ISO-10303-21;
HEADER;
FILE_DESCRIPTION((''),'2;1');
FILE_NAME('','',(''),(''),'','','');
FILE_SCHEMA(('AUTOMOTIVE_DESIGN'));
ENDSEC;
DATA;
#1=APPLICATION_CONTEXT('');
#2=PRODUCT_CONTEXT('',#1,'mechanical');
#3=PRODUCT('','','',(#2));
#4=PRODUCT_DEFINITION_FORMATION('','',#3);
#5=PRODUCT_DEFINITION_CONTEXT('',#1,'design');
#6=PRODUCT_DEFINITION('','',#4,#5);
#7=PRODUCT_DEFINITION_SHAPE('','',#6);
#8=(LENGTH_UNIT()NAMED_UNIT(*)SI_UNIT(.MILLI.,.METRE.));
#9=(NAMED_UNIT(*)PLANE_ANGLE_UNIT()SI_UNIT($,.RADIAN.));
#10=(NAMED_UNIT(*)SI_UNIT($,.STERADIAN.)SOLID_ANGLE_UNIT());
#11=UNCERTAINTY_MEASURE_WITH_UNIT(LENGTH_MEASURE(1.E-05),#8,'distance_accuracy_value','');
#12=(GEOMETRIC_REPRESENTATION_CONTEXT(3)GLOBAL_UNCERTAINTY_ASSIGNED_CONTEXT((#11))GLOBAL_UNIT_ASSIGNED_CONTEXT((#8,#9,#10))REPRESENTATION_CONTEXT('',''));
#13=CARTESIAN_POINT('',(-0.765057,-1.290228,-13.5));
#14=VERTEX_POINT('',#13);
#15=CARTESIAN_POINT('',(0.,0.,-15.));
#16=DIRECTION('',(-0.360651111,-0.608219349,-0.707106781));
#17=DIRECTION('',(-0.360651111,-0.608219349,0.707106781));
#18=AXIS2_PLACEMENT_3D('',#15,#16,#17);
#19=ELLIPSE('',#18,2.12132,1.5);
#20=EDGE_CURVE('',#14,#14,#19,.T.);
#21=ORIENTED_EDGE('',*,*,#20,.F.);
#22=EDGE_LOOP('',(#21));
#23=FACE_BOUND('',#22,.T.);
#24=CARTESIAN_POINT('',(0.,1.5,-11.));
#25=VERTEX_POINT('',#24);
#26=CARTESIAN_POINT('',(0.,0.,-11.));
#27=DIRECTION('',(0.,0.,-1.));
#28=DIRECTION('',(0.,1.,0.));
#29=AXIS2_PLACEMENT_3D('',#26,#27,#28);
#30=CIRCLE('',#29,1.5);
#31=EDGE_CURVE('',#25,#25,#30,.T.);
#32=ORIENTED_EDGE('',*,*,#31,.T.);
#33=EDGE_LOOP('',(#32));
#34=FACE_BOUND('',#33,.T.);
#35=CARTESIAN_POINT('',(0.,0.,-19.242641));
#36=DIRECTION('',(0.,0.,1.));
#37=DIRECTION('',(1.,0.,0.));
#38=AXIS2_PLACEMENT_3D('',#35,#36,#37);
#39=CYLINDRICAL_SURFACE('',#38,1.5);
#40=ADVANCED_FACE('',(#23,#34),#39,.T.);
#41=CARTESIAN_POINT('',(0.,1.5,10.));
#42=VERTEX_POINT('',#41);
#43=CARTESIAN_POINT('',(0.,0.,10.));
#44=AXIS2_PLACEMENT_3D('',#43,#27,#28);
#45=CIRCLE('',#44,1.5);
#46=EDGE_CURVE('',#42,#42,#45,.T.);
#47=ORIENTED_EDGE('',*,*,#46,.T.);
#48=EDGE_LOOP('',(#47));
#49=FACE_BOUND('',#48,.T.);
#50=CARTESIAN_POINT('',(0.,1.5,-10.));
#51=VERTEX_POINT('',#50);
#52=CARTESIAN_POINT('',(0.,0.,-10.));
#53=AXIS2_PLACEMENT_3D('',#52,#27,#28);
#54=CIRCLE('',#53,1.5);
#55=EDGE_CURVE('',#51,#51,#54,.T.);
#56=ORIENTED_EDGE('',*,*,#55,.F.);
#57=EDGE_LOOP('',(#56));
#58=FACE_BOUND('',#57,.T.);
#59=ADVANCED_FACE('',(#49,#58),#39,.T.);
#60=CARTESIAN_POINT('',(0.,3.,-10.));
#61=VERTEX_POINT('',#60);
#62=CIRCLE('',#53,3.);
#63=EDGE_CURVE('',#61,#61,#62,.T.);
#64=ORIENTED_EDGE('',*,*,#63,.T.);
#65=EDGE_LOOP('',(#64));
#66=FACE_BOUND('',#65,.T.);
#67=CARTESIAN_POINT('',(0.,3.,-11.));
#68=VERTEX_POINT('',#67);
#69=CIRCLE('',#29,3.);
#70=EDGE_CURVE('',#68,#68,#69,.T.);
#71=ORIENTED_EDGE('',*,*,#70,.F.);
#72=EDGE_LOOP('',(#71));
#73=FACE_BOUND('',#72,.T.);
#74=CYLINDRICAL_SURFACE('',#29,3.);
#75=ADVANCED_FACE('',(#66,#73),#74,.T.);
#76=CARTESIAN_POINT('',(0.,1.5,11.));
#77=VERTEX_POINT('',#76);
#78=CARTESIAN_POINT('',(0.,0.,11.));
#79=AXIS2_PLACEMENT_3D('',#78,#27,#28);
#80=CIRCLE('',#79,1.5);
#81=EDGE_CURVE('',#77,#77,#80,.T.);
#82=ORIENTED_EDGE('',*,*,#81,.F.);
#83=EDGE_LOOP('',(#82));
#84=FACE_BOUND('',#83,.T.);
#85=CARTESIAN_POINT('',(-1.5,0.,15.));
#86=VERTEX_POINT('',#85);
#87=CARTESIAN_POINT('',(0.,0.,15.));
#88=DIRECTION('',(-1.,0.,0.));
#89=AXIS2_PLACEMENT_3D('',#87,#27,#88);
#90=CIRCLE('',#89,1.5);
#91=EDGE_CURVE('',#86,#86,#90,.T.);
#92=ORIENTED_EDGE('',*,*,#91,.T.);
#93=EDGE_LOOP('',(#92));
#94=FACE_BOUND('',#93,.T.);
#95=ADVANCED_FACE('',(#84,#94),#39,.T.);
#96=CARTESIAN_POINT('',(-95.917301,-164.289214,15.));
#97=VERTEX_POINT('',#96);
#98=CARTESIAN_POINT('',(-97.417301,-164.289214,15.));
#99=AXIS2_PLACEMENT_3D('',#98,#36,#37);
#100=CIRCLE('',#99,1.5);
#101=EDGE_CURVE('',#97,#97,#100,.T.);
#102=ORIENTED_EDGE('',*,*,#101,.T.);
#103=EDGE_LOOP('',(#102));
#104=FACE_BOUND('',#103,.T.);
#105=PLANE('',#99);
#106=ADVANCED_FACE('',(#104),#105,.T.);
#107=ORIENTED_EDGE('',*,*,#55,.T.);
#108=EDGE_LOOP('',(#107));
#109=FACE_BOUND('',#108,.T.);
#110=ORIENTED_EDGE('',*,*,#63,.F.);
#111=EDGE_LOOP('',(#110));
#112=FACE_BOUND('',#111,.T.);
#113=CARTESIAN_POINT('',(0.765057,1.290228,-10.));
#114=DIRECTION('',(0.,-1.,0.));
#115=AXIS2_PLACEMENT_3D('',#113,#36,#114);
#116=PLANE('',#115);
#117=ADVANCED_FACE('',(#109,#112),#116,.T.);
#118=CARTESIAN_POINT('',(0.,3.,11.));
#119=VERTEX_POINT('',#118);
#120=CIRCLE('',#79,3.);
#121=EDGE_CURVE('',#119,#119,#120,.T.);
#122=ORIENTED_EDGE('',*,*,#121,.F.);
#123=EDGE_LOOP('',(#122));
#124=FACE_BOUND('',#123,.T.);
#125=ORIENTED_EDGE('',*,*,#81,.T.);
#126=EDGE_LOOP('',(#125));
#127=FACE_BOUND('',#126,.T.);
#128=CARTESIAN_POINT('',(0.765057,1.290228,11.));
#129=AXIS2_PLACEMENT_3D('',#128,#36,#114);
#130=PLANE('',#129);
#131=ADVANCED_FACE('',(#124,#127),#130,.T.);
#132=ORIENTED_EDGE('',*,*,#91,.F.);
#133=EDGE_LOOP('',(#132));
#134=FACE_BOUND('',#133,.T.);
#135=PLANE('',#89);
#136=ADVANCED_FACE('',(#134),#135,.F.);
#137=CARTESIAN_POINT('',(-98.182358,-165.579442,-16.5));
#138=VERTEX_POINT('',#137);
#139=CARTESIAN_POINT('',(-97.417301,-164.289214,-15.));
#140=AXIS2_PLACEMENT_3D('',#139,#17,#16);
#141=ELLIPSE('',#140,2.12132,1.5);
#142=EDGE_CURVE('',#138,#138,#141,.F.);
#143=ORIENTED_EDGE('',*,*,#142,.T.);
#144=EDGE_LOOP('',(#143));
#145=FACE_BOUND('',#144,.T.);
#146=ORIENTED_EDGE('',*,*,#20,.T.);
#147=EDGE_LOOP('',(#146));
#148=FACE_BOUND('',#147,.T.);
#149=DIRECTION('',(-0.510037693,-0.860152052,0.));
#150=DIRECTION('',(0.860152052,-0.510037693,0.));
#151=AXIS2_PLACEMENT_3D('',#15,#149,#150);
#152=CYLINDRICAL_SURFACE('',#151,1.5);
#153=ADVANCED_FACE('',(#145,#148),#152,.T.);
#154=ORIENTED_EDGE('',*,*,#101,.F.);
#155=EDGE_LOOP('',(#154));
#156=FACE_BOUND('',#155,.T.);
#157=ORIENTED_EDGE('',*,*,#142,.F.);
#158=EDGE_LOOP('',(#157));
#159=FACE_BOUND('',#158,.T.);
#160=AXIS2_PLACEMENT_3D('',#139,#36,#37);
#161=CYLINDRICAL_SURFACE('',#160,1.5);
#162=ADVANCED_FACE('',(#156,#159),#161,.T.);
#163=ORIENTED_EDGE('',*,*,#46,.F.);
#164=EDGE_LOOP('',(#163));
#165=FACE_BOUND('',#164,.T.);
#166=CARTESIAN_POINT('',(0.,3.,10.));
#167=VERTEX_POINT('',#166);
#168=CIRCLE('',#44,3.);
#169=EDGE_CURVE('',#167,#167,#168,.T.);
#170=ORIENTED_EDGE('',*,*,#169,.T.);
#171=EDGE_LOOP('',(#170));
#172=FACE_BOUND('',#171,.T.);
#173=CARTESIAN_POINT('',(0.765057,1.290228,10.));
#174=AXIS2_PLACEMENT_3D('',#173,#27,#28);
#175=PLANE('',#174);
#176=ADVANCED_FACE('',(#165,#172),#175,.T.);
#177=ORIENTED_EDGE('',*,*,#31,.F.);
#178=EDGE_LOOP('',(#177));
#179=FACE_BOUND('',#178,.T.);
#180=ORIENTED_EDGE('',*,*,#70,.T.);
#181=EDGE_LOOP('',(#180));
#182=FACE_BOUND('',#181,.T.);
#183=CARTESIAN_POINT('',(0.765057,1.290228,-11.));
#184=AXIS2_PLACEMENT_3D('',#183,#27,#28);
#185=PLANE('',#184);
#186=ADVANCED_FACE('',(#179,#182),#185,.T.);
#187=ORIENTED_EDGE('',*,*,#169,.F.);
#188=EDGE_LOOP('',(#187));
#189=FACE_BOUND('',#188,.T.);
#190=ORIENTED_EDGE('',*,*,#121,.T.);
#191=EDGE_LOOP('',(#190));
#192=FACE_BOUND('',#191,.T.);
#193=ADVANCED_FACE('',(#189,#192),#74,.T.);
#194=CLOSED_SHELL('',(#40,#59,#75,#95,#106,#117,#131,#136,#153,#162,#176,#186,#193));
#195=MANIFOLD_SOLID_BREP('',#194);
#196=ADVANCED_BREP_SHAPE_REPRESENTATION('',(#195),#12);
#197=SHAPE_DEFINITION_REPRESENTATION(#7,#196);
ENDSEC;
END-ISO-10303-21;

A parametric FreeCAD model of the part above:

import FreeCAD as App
import Part
import Sketcher

V = App.Vector


def add_polygon(sketch, points):
    """Adds a closed chain of lines whose ends are joined by coincident constraints."""
    first, n = sketch.GeometryCount, len(points)
    for a, b in zip(points, points[1:] + points[:1]):
        sketch.addGeometry(Part.LineSegment(App.Vector(*a, 0), App.Vector(*b, 0)), False)
    for i in range(n):
        sketch.addConstraint(Sketcher.Constraint("Coincident", first + i, 2, first + (i + 1) % n, 1))

doc = App.newDocument("Part")
body = doc.addObject("PartDesign::Body", "Body")

sketch1 = body.newObject("Sketcher::SketchObject", "Sketch")
sketch1.AttachmentSupport = (doc.getObject("XY_Plane"), [""])
sketch1.MapMode = "FlatFace"
sketch1.AttachmentOffset = App.Placement(V(0, 0, 15), App.Rotation())
sketch1.addGeometry(Part.Circle(V(0, 0, 0), V(0, 0, 1), 1.5), False)
sketch1.addConstraint([
    Sketcher.Constraint("Coincident", 0, 3, -1, 1),
    Sketcher.Constraint("Diameter", 0, 3.0),
])

sketch2 = body.newObject("Sketcher::SketchObject", "Sketch001")
sketch2.Placement = App.Placement(V(0, 0, 0), App.Rotation(V(0.510037693, 0.860152052, 0), V(0, 0, 1.000000001), V(0.860152052, -0.510037693, 0), "ZXY"))
sketch2.addGeometry([
    Part.LineSegment(V(0, 15, 0), V(0, -15, 0)),
    Part.LineSegment(V(0, -15, 0), V(-191.0002, -15, 0)),
    Part.LineSegment(V(-191.0002, -15, 0), V(-191.0002, 15, 0)),
], False)
sketch2.addConstraint([
    Sketcher.Constraint("Coincident", 0, 2, 1, 1),
    Sketcher.Constraint("Coincident", 1, 2, 2, 1),
    Sketcher.Constraint("Vertical", 0),
    Sketcher.Constraint("Horizontal", 1),
    Sketcher.Constraint("Vertical", 2),
    Sketcher.Constraint("Symmetric", 0, 1, 0, 2, -1, 1),
    Sketcher.Constraint("Horizontal", 0, 1, 2, 2),
    Sketcher.Constraint("DistanceY", 0, 2, 0, 1, 30.0),
    Sketcher.Constraint("DistanceX", 1, 2, 1, 1, 191.0002),
])
doc.recompute()

additivepipe = body.newObject("PartDesign::AdditivePipe", "AdditivePipe")
additivepipe.Profile = sketch1
additivepipe.Spine = (sketch2, ["Edge1", "Edge2", "Edge3"])
additivepipe.Transition = "Right corner"

sketch3 = body.newObject("Sketcher::SketchObject", "Sketch002")
sketch3.Placement = App.Placement(V(0, 0, 0), App.Rotation(V(-0.510037693, -0.860152052, 0), V(0, 0, -1.000000001), V(0.860152052, -0.510037693, 0), "ZXY"))
add_polygon(sketch3, [(-3, -10), (-3, -11), (-1.5, -11), (-1.5, -10)])
add_polygon(sketch3, [(-3, 11), (-3, 10), (-1.5, 10), (-1.5, 11)])
sketch3.addConstraint([
    Sketcher.Constraint("Vertical", 0),
    Sketcher.Constraint("Horizontal", 1),
    Sketcher.Constraint("Vertical", 2),
    Sketcher.Constraint("Horizontal", 3),
    Sketcher.Constraint("Vertical", 4),
    Sketcher.Constraint("Horizontal", 5),
    Sketcher.Constraint("Vertical", 6),
    Sketcher.Constraint("Horizontal", 7),
    Sketcher.Constraint("Symmetric", 3, 2, 4, 2, -1),
    Sketcher.Constraint("Symmetric", 1, 2, 6, 2, -1),
    Sketcher.Constraint("DistanceY", 0, 2, 0, 1, 1.0),
    Sketcher.Constraint("DistanceX", 1, 1, 1, 2, 1.5),
    Sketcher.Constraint("DistanceX", 0, 2, -1, 1, 3.0),
    Sketcher.Constraint("DistanceY", 0, 2, -1, 1, 11.0),
])
revolution = body.newObject("PartDesign::Revolution", "Revolution")
revolution.Profile = sketch3
revolution.ReferenceAxis = (sketch3, ["V_Axis"])
revolution.Angle = 360

doc.recompute()
